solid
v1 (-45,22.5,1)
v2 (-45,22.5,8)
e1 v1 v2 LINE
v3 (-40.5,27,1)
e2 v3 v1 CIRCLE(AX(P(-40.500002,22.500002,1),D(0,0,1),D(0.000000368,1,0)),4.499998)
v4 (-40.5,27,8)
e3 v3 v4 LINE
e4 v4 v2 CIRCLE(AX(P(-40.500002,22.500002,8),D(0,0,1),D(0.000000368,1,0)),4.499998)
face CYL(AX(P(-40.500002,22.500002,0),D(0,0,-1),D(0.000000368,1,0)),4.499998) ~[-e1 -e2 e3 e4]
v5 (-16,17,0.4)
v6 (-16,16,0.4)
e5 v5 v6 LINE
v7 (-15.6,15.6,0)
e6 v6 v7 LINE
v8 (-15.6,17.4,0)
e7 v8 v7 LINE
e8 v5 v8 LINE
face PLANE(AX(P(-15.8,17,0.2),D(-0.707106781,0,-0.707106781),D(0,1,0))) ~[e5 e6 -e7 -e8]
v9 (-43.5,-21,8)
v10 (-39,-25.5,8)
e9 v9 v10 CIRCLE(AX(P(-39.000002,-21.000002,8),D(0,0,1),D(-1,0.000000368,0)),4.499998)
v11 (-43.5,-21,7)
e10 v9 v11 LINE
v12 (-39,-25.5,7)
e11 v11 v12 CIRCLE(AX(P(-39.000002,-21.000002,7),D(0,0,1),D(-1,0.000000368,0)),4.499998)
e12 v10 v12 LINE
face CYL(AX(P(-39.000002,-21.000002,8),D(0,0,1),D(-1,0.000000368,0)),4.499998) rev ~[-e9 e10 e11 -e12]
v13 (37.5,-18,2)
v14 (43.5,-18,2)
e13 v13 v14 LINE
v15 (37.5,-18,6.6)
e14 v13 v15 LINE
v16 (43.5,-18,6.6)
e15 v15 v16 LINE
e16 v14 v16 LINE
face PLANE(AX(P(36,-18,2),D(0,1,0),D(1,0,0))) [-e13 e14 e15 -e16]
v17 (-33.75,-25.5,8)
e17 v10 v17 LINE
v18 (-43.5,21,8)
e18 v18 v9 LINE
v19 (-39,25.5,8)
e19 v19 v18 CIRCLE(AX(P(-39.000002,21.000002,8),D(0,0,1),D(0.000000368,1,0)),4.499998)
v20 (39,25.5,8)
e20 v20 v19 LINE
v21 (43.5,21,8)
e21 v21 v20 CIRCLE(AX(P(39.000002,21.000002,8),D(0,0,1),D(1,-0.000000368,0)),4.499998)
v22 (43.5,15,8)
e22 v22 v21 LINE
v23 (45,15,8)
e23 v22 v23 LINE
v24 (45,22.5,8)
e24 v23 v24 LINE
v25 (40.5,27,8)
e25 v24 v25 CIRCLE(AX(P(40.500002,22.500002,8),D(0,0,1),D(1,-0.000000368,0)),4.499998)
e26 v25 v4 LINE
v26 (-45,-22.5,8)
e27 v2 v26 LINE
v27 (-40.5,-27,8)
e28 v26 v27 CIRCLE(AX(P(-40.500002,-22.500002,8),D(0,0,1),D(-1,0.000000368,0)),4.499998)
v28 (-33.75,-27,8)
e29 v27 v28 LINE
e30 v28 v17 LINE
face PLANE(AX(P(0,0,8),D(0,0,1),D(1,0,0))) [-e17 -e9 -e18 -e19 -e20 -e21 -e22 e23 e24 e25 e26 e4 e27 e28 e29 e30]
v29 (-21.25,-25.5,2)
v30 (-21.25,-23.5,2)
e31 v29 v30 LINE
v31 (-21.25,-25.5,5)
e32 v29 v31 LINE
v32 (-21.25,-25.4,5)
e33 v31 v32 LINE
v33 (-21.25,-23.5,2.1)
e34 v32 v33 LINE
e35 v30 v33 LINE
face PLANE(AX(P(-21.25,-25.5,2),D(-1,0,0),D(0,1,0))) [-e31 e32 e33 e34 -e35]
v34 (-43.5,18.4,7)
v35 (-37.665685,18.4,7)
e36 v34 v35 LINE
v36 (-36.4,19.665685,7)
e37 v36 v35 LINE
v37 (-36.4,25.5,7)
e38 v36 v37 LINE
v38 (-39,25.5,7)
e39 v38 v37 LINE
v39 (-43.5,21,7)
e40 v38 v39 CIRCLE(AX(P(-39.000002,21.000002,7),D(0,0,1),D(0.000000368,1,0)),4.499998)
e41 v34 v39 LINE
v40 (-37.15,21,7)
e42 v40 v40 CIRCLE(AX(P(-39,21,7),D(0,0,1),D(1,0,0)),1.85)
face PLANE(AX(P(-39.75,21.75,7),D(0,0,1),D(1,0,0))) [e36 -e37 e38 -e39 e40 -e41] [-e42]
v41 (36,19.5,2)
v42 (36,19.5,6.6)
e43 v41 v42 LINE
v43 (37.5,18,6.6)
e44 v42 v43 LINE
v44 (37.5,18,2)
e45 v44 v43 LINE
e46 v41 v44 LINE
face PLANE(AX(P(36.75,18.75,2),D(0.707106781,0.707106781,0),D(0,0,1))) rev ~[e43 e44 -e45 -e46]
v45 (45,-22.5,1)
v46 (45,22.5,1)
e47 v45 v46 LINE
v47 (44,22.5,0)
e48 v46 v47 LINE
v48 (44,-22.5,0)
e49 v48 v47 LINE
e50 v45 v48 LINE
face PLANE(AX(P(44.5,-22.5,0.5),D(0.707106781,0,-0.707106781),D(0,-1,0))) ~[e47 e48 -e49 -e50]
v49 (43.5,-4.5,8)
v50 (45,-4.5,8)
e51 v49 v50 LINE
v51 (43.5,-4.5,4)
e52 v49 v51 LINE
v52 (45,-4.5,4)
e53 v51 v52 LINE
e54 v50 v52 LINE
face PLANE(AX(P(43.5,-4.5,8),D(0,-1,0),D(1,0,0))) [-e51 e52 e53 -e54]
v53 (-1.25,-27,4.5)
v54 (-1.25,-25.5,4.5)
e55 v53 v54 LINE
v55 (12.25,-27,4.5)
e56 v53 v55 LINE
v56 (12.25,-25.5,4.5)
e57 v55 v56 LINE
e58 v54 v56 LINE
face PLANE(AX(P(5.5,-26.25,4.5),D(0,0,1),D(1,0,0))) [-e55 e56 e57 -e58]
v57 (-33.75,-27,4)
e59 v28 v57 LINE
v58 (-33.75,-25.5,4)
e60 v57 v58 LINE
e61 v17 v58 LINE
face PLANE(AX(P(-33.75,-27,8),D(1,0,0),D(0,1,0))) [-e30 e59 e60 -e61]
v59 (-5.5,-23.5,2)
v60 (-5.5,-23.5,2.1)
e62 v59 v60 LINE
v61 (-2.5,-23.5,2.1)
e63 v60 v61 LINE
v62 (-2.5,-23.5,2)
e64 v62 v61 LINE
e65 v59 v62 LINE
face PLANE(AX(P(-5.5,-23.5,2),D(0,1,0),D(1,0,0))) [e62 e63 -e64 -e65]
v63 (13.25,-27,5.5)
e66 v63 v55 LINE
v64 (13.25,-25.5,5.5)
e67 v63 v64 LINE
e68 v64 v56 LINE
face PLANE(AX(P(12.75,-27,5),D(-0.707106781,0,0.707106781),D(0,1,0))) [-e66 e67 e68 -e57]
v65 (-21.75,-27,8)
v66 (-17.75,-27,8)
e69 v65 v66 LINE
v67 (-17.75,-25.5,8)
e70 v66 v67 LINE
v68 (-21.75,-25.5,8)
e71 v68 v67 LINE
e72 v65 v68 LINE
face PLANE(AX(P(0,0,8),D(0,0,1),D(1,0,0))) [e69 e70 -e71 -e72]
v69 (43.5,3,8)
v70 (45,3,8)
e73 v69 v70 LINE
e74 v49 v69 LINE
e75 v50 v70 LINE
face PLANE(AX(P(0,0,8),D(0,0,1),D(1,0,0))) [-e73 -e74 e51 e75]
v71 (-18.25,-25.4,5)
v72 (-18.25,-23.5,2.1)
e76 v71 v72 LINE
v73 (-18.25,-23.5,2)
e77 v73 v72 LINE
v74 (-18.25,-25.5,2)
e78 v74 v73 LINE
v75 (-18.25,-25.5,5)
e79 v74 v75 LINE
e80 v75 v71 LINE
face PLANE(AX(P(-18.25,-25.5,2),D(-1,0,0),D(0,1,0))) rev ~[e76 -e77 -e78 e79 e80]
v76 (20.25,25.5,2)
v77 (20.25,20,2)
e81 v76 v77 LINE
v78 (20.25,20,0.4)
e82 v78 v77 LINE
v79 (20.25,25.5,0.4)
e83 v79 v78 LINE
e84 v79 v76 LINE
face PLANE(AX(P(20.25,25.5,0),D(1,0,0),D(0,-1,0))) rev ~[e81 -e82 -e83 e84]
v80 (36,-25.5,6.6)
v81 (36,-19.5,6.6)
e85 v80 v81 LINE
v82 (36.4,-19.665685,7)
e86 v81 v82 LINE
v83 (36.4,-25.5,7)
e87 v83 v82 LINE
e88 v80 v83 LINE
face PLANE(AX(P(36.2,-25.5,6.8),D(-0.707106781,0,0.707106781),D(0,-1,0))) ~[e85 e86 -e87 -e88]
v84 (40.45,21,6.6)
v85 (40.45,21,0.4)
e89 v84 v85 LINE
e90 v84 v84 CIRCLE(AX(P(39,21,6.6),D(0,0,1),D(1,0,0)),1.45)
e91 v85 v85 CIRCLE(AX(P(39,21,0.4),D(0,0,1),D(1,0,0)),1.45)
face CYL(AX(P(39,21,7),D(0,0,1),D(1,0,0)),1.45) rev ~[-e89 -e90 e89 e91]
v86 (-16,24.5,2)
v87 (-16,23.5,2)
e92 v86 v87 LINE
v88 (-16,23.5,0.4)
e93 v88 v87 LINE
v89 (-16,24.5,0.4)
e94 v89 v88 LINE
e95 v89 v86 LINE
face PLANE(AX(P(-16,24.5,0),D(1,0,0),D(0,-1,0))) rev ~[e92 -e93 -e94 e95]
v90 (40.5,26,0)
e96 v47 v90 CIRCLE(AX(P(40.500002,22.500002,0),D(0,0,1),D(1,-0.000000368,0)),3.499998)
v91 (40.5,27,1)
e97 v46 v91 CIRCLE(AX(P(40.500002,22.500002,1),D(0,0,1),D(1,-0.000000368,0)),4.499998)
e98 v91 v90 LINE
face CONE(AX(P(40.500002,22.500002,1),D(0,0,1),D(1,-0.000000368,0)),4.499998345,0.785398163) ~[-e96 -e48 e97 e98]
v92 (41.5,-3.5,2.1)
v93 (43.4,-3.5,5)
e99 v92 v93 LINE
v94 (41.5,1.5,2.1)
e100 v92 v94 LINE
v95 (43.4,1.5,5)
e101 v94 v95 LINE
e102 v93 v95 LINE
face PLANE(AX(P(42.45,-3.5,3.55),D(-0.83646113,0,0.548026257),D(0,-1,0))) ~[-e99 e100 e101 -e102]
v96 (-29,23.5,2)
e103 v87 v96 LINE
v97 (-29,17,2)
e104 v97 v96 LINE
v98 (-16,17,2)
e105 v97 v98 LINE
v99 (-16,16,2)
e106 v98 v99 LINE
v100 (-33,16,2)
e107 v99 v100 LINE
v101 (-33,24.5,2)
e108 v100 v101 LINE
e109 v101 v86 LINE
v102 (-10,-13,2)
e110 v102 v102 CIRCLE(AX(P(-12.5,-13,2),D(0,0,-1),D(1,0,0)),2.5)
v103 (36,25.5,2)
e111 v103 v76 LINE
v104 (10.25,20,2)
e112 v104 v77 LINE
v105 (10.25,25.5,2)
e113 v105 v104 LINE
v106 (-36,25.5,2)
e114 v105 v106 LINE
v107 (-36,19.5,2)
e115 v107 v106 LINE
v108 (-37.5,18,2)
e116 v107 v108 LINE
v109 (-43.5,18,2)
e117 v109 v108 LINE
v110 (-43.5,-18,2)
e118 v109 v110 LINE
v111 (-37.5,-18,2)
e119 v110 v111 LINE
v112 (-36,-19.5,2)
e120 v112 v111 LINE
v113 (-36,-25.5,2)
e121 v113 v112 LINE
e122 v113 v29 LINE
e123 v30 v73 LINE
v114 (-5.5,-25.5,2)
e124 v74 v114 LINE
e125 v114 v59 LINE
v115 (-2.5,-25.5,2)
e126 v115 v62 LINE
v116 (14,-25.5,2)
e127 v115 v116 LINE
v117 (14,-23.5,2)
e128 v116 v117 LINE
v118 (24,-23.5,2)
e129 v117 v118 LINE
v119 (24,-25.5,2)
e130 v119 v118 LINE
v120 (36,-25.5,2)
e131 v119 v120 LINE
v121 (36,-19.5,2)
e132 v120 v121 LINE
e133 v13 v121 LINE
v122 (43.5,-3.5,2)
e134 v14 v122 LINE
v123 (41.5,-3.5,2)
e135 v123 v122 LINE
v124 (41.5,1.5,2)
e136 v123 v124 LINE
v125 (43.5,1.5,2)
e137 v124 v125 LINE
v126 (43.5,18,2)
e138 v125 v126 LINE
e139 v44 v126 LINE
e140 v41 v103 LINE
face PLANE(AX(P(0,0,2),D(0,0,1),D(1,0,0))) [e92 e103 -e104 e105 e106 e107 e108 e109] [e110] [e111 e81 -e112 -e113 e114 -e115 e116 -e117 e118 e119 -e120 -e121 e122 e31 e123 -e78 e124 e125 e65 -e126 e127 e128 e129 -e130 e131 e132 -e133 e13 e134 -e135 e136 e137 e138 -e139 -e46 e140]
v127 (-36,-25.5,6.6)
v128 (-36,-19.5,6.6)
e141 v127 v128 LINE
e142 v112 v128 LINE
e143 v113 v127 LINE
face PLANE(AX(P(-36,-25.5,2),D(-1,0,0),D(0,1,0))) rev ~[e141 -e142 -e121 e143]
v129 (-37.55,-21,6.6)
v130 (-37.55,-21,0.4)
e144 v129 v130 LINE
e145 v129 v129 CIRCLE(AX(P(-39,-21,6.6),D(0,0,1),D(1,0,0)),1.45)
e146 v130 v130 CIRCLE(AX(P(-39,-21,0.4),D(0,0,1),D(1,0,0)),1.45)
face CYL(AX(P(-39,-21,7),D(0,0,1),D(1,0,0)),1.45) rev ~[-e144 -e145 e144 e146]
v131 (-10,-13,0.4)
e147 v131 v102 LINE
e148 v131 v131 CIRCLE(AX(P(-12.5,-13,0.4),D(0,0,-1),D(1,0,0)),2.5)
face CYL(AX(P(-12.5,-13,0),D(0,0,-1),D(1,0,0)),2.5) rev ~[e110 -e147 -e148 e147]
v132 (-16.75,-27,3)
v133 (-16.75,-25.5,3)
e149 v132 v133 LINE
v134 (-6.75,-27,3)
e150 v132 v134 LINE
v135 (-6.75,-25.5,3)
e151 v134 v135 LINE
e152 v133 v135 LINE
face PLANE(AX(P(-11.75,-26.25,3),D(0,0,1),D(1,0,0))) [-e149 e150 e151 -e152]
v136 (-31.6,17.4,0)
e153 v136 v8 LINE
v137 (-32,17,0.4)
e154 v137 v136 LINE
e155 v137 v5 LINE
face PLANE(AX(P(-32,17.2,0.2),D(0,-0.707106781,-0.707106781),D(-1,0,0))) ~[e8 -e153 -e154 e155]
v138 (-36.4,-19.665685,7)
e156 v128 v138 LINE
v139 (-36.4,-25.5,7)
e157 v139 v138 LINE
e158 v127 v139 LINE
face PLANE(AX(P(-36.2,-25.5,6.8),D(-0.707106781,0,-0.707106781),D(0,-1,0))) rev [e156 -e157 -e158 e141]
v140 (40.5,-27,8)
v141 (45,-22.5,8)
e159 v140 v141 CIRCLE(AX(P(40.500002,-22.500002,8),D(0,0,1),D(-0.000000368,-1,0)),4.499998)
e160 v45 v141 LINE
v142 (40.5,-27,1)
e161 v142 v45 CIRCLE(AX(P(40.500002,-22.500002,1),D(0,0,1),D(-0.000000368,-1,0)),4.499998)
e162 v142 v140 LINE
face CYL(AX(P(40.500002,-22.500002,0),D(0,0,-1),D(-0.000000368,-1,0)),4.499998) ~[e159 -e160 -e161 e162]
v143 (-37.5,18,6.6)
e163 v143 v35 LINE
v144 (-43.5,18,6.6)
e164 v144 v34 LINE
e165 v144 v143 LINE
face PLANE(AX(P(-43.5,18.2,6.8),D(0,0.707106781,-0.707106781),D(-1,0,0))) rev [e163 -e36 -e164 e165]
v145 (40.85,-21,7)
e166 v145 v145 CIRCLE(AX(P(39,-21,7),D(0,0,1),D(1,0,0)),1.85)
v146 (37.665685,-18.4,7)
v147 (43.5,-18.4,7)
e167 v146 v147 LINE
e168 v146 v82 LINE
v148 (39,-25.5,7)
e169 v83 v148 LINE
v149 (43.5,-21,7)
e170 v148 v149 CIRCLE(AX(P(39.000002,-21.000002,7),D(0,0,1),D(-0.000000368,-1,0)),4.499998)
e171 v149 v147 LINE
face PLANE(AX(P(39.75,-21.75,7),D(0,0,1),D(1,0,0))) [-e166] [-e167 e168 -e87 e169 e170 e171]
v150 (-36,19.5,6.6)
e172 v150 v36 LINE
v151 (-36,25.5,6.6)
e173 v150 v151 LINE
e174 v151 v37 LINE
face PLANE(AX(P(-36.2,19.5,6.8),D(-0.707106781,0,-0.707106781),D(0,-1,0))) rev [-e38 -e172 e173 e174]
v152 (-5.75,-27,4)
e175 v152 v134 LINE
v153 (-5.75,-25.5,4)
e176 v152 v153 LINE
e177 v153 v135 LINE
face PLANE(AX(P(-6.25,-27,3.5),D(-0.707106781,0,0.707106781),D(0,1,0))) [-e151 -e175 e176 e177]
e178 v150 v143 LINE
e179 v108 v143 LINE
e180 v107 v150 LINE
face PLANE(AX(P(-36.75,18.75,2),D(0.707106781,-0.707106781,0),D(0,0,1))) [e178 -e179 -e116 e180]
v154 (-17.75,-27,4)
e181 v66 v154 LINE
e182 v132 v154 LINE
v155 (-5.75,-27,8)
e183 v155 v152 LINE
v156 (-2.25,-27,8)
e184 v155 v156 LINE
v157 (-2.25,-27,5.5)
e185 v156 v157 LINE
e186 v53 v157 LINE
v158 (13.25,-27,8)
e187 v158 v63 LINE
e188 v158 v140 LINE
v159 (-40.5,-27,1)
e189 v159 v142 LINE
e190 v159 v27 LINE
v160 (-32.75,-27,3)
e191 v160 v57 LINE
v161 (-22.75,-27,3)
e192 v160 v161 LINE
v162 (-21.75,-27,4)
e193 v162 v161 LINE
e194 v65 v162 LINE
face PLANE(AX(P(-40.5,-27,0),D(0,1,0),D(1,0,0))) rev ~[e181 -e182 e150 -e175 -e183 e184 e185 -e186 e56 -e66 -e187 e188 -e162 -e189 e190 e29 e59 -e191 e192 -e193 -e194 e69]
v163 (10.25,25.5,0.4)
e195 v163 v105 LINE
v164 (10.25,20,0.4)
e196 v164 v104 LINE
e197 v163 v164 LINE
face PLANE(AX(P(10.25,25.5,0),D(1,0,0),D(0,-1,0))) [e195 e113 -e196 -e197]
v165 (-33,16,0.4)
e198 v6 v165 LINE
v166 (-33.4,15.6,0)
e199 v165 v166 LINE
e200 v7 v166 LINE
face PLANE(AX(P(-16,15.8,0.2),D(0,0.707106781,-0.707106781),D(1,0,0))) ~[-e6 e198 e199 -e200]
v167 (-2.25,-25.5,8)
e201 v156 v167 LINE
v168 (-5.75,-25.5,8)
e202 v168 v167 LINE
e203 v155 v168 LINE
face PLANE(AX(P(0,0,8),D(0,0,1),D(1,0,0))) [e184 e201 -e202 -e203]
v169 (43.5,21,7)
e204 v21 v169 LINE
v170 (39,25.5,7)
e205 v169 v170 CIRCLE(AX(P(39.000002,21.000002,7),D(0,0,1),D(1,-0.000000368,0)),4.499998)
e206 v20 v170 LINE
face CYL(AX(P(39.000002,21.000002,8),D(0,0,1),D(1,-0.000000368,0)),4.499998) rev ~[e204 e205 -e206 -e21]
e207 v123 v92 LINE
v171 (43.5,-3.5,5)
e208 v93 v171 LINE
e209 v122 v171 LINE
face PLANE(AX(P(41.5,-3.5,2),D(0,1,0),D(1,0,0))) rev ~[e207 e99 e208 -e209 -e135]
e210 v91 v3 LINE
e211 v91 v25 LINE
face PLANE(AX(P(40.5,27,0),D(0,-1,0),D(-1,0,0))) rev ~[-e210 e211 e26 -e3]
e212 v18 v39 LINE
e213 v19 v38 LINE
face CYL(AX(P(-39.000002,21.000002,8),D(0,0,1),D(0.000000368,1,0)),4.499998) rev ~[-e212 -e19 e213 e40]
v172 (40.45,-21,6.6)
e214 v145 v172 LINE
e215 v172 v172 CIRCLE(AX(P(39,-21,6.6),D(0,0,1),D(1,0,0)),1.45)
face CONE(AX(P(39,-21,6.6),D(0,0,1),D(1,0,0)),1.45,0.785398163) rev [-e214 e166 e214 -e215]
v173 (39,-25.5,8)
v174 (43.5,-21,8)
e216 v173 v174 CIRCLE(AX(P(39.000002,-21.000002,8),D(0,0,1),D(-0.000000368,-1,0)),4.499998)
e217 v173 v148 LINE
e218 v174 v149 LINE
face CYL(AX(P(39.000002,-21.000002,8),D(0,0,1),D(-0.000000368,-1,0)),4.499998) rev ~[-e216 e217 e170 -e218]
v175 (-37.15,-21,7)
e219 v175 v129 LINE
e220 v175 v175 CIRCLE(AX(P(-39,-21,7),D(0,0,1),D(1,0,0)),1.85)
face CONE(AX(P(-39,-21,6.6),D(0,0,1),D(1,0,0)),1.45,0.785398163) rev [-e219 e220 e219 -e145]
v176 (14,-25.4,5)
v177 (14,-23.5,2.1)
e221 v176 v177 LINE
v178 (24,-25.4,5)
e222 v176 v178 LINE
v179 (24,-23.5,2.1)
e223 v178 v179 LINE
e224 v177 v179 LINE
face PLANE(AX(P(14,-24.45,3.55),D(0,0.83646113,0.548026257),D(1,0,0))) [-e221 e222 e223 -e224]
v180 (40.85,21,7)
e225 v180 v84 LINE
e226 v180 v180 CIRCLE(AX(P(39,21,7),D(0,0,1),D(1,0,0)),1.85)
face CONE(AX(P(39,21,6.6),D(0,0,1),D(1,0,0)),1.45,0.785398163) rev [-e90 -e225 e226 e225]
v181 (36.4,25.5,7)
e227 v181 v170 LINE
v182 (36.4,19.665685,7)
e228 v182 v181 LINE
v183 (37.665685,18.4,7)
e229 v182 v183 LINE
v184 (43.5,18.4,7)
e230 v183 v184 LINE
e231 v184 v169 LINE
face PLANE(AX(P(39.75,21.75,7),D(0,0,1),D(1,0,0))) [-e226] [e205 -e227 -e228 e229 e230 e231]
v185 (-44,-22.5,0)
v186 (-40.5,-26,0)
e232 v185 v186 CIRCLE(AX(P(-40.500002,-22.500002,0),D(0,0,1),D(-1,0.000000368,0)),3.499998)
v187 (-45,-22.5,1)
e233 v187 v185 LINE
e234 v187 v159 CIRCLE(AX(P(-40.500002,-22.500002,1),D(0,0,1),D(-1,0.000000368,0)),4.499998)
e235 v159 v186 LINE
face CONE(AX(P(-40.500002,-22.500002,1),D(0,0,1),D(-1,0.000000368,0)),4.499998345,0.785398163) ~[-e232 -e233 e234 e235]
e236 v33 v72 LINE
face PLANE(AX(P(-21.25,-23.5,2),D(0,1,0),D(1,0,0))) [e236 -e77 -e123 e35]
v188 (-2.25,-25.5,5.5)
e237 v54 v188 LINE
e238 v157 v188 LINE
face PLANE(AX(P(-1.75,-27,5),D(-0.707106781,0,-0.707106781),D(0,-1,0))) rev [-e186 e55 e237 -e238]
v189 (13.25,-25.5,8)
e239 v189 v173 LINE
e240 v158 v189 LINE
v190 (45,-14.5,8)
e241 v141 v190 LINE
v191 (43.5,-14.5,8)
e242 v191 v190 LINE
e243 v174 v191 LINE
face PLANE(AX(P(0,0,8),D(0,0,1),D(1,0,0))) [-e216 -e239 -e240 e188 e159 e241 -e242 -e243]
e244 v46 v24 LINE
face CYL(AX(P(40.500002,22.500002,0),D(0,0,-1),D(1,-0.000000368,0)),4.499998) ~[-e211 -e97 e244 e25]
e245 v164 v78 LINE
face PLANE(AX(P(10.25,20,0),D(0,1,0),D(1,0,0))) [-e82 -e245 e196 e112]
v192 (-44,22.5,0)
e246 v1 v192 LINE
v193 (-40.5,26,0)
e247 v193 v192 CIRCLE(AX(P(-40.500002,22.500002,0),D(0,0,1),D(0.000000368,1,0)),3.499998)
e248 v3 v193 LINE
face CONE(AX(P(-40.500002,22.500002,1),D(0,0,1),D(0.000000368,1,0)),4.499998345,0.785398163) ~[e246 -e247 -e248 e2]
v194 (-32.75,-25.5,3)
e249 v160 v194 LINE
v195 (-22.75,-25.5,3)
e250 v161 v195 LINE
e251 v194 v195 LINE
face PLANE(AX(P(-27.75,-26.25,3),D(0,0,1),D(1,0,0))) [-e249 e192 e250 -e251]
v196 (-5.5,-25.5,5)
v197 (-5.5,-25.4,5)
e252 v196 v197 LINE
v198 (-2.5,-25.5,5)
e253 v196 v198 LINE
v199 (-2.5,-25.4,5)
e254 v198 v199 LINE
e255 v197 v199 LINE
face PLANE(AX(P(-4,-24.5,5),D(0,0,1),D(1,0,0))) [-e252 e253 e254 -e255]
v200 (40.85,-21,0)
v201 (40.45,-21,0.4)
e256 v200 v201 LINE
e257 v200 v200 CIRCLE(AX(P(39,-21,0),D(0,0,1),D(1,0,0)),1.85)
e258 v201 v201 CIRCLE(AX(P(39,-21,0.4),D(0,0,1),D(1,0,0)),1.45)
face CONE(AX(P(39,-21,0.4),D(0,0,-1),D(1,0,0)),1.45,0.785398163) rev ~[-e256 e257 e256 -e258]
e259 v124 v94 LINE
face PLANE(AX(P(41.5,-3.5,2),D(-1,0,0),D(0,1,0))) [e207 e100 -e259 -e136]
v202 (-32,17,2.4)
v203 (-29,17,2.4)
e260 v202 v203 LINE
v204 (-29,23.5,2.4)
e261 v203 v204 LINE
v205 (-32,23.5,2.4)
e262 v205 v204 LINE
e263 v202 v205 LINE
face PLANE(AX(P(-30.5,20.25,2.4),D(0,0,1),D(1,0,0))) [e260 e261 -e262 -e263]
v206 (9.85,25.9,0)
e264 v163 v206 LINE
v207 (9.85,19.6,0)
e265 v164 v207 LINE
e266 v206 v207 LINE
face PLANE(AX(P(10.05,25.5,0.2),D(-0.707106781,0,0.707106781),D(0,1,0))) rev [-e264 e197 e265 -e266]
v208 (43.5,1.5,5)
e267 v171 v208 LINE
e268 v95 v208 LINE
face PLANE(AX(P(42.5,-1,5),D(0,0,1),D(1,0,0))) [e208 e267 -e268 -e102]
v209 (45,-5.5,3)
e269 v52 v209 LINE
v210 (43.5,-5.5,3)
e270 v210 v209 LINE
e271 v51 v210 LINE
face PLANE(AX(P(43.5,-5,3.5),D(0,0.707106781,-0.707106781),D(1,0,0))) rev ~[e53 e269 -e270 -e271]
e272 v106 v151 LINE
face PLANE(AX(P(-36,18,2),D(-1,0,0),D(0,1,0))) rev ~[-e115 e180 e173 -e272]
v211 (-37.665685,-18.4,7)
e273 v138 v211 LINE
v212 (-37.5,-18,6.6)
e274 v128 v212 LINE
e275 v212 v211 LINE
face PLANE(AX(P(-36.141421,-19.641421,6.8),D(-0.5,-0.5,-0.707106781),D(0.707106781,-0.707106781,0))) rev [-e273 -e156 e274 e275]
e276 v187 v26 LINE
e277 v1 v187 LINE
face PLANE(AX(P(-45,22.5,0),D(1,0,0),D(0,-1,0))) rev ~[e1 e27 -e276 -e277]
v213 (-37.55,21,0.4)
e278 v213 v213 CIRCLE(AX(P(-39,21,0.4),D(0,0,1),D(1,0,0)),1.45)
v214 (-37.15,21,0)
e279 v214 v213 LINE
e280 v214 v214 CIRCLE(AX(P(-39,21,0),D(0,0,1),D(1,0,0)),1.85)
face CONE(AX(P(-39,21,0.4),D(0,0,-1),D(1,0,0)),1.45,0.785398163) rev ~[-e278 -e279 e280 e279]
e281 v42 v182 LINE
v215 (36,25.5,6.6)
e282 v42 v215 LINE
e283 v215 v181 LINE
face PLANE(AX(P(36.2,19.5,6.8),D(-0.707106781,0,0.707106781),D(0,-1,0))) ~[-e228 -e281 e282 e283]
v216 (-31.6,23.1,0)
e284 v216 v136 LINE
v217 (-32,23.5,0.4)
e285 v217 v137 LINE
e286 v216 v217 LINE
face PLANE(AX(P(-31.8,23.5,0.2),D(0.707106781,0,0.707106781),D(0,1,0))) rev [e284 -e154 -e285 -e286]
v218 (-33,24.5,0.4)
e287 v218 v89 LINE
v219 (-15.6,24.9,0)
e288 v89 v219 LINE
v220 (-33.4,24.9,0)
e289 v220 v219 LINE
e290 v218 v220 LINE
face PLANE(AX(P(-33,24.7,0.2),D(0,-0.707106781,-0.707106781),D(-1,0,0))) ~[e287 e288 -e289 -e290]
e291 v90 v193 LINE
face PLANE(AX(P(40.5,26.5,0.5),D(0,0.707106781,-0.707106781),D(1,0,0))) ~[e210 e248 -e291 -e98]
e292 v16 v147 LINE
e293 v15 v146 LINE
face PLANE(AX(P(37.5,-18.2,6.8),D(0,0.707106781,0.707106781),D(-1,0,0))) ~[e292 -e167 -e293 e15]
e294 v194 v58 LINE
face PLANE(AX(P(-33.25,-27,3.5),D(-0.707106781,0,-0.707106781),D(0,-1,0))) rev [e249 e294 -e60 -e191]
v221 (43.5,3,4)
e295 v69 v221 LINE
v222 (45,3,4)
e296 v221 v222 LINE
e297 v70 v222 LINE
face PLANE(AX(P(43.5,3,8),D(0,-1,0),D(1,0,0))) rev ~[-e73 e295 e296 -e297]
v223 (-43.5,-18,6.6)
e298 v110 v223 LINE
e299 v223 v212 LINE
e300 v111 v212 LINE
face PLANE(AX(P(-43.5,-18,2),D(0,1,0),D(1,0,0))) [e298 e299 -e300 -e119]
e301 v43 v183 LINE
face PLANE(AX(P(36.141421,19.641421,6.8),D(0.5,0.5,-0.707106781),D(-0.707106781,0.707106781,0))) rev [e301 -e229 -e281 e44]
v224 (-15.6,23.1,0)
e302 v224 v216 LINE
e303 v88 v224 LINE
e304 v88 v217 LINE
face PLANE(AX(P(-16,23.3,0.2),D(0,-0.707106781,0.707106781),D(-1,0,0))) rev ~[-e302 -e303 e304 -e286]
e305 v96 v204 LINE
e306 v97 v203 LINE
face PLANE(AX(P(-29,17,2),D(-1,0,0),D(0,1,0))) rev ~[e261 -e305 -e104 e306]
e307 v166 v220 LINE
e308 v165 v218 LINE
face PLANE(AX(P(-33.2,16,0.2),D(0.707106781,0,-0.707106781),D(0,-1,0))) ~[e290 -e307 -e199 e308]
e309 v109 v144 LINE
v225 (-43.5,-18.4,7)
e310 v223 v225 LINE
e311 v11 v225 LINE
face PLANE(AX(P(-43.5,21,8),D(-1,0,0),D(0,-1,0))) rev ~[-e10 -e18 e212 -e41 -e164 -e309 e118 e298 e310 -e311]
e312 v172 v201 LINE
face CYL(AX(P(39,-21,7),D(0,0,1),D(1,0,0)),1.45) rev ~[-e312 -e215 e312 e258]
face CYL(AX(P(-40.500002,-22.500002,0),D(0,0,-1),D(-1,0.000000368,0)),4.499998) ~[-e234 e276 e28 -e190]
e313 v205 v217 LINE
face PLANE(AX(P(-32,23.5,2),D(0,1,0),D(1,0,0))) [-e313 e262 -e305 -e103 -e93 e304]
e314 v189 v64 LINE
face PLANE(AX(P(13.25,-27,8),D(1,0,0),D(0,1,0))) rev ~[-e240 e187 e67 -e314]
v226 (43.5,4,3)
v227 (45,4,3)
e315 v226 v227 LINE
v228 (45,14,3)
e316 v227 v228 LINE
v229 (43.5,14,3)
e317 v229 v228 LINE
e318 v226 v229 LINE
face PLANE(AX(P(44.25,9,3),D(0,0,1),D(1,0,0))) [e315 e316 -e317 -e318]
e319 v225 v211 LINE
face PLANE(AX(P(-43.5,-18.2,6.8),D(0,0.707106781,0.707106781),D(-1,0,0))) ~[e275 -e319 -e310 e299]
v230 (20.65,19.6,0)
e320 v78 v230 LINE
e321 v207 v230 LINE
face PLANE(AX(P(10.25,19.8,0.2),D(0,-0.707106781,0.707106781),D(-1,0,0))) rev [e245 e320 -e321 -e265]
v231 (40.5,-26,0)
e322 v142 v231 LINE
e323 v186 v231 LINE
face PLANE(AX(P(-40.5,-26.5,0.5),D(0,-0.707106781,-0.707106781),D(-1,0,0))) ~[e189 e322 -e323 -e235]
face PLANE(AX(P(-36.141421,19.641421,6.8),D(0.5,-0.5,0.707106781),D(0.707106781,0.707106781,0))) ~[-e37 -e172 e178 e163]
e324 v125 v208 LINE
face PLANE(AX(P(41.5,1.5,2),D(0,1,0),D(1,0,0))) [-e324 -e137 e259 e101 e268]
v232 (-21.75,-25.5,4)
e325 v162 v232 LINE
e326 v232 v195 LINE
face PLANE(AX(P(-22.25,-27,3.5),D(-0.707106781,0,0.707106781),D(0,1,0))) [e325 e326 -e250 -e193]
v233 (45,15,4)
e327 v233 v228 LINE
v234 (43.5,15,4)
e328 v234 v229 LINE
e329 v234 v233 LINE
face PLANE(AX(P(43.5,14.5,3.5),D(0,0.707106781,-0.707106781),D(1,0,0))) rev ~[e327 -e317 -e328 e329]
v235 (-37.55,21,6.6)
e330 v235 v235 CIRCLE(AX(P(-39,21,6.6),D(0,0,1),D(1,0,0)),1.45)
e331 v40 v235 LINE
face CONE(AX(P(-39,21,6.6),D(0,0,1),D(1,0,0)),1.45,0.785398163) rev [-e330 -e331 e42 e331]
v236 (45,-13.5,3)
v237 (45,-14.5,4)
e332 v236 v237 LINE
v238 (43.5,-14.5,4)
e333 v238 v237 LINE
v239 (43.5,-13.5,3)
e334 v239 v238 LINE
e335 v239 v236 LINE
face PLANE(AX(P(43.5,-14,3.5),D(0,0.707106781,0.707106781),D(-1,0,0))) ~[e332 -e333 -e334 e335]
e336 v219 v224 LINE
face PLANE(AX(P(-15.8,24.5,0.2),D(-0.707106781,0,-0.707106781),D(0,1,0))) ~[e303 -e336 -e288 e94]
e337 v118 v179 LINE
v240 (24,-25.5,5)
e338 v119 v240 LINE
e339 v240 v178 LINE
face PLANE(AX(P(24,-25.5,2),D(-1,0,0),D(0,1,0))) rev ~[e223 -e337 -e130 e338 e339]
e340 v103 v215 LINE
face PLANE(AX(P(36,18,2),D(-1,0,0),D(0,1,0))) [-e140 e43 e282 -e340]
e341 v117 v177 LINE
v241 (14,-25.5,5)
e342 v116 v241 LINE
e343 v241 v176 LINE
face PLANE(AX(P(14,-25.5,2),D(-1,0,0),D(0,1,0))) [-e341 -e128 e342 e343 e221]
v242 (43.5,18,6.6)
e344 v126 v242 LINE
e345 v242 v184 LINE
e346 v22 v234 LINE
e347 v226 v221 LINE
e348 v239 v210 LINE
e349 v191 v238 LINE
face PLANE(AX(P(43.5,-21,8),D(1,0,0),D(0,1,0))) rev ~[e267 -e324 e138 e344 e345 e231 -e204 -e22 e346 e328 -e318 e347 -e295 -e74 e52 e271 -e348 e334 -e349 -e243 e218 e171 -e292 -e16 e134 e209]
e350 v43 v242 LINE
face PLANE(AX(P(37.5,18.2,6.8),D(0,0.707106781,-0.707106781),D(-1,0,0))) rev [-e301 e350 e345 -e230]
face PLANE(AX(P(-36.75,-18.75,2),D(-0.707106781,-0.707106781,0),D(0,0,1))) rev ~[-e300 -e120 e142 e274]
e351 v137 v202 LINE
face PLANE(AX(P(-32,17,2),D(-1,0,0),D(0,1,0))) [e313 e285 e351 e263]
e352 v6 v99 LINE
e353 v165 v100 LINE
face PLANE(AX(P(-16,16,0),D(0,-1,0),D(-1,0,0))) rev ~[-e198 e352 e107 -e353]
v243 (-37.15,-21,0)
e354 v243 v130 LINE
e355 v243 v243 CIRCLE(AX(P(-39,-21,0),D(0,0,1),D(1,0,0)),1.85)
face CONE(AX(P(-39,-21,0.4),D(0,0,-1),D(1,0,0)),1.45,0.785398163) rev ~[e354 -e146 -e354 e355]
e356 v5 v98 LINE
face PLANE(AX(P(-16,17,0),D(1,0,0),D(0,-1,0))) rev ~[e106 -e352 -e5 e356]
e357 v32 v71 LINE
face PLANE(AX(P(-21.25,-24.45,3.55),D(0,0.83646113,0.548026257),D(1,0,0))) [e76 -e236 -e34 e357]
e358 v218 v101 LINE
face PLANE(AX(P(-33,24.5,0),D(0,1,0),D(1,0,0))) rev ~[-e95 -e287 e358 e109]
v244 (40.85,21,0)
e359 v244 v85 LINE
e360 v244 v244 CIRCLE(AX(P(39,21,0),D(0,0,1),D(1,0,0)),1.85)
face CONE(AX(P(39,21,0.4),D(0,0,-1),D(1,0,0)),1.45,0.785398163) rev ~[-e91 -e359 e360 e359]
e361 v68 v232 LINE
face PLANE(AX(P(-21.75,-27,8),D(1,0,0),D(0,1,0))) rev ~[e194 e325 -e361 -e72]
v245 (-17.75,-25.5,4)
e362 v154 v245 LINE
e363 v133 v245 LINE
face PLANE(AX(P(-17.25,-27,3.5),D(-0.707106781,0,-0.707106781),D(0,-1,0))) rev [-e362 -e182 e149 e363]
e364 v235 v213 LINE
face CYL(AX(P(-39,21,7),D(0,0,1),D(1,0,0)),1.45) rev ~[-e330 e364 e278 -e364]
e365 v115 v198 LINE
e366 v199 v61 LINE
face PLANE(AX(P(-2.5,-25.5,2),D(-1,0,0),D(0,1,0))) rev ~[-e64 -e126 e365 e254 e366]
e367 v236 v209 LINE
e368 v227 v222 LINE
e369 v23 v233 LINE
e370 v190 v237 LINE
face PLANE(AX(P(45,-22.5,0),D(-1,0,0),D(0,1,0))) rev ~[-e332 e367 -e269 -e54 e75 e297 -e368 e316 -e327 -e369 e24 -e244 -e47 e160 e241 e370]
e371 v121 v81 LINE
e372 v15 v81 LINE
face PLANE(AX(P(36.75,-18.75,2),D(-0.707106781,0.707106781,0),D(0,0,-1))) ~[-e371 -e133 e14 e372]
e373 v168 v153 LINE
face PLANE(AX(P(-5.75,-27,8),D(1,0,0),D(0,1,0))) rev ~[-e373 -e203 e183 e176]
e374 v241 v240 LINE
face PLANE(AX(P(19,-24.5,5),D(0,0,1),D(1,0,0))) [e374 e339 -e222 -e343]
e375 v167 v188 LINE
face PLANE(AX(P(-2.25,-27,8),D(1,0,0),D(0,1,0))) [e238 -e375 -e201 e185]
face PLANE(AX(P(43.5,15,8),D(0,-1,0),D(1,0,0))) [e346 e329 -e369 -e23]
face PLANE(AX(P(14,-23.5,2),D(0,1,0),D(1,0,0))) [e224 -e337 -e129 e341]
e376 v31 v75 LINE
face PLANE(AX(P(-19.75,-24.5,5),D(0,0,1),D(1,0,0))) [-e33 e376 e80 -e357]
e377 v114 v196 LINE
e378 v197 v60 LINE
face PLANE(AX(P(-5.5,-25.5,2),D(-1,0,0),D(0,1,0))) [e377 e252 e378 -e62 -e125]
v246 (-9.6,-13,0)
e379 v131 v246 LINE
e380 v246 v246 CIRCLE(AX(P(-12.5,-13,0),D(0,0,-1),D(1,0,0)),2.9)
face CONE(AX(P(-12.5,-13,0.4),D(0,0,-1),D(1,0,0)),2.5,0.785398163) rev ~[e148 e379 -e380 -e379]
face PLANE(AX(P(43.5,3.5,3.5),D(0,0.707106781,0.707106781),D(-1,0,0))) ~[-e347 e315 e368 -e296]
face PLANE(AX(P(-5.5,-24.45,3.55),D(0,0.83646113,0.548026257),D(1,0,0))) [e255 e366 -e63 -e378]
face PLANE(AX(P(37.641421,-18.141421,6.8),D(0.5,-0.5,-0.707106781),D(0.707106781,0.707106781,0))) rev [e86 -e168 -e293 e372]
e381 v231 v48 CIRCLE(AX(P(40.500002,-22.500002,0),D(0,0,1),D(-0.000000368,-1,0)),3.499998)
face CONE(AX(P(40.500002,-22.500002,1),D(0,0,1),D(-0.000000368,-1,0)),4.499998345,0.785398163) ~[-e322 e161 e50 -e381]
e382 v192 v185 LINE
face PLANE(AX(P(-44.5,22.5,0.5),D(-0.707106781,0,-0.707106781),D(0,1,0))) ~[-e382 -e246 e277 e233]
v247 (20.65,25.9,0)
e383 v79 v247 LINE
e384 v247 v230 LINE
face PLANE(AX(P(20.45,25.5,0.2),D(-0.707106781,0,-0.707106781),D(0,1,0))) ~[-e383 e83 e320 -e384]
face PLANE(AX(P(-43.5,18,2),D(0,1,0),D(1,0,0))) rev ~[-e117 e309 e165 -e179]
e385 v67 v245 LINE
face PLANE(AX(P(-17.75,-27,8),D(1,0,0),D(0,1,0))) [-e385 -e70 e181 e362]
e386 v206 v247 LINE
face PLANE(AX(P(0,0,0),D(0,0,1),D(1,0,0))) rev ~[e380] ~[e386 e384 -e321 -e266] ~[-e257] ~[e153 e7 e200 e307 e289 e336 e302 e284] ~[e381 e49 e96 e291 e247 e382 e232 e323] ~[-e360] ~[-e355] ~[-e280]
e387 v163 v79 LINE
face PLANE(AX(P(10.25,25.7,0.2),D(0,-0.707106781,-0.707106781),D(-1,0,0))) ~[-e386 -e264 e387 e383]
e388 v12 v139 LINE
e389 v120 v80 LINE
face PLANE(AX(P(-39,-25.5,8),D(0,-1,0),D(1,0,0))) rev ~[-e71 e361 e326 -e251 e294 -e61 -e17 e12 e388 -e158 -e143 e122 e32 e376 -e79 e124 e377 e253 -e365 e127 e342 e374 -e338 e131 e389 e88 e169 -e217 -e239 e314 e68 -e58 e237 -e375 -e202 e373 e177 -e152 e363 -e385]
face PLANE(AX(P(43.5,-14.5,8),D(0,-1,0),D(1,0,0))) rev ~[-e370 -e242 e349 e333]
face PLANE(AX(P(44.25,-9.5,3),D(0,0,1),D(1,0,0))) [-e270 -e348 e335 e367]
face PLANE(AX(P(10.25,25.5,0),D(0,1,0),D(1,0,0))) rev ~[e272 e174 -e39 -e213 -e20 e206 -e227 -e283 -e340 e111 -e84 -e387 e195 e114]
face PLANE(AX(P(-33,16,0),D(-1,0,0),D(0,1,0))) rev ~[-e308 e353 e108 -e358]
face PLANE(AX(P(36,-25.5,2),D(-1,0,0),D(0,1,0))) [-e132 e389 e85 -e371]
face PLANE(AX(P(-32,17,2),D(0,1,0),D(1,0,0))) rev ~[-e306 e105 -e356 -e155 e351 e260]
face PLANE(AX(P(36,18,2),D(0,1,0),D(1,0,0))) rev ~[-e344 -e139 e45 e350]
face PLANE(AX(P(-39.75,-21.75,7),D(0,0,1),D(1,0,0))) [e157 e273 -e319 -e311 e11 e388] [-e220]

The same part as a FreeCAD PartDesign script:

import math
import FreeCAD as App
import Part
import Sketcher
Q = App.Units.Quantity


def edges_at(feature, points):
    """Names of the edges that pass closest to the given points."""
    edges = feature.Shape.Edges
    near = lambda p: min(range(len(edges)), key=lambda i: edges[i].distToShape(Part.Vertex(*p))[0])
    return sorted({f"Edge{near(p) + 1}" for p in points})


def add_polygon(sketch, points):
    """Adds a closed chain of lines whose ends are joined by coincident constraints."""
    first, n = sketch.GeometryCount, len(points)
    for a, b in zip(points, points[1:] + points[:1]):
        sketch.addGeometry(Part.LineSegment(App.Vector(*a, 0), App.Vector(*b, 0)), False)
    for i in range(n):
        sketch.addConstraint(Sketcher.Constraint("Coincident", first + i, 2, first + (i + 1) % n, 1))

doc = App.newDocument("Part")
body = doc.addObject("PartDesign::Body", "Body")

sketch1 = doc.addObject("Sketcher::SketchObject", "Sketch")
body.addObject(sketch1)
sketch1.AttachmentSupport = (doc.XY_Plane, [""])
sketch1.MapMode = "FlatFace"
sketch1.addGeometry([
    Part.LineSegment(App.Vector(-40.5, -27, 0), App.Vector(40.5, -27, 0)),
    Part.ArcOfCircle(Part.Circle(App.Vector(40.5, -22.5, 0), App.Vector(0, 0, 1), 4.5), math.radians(-90), math.radians(0)),
    Part.LineSegment(App.Vector(45, -22.5, 0), App.Vector(45, 22.5, 0)),
    Part.ArcOfCircle(Part.Circle(App.Vector(40.5, 22.5, 0), App.Vector(0, 0, 1), 4.5), math.radians(0), math.radians(90)),
    Part.LineSegment(App.Vector(40.5, 27, 0), App.Vector(-40.5, 27, 0)),
    Part.ArcOfCircle(Part.Circle(App.Vector(-40.5, 22.5, 0), App.Vector(0, 0, 1), 4.5), math.radians(90), math.radians(180)),
    Part.LineSegment(App.Vector(-45, 22.5, 0), App.Vector(-45, -22.5, 0)),
    Part.ArcOfCircle(Part.Circle(App.Vector(-40.5, -22.5, 0), App.Vector(0, 0, 1), 4.5), math.radians(180), math.radians(270)),
], False)
sketch1.addConstraint([
    Sketcher.Constraint("Tangent", 0, 2, 1, 1),
    Sketcher.Constraint("Tangent", 1, 2, 2, 1),
    Sketcher.Constraint("Tangent", 2, 2, 3, 1),
    Sketcher.Constraint("Tangent", 3, 2, 4, 1),
    Sketcher.Constraint("Tangent", 4, 2, 5, 1),
    Sketcher.Constraint("Tangent", 5, 2, 6, 1),
    Sketcher.Constraint("Tangent", 6, 2, 7, 1),
    Sketcher.Constraint("Tangent", 7, 2, 0, 1),
    Sketcher.Constraint("Horizontal", 0),
    Sketcher.Constraint("Vertical", 2),
    Sketcher.Constraint("Horizontal", 4),
    Sketcher.Constraint("Vertical", 6),
    Sketcher.Constraint("Equal", 1, 3),
    Sketcher.Constraint("Equal", 3, 5),
    Sketcher.Constraint("Equal", 5, 7),
    Sketcher.Constraint("Symmetric", 1, 3, 5, 3, -1, 1),
    Sketcher.Constraint("Radius", 1, Q("4.499998 mm")),
    Sketcher.Constraint("DistanceX", 0, 1, 0, 2, Q("81 mm")),
    Sketcher.Constraint("DistanceY", 2, 1, 2, 2, Q("45 mm")),
])
pad1 = doc.addObject("PartDesign::Pad", "Pad")
body.addObject(pad1)
pad1.Profile = sketch1
pad1.Length = 8

sketch2 = doc.addObject("Sketcher::SketchObject", "Sketch001")
body.addObject(sketch2)
sketch2.AttachmentSupport = (doc.XY_Plane, [""])
sketch2.MapMode = "FlatFace"
sketch2.AttachmentOffset = App.Placement(App.Vector(0, 0, 8), App.Rotation())
sketch2.addGeometry([
    Part.LineSegment(App.Vector(-39, -25.5, 0), App.Vector(39, -25.5, 0)),
    Part.ArcOfCircle(Part.Circle(App.Vector(39, -21, 0), App.Vector(0, 0, 1), 4.5), math.radians(-90), math.radians(0)),
    Part.LineSegment(App.Vector(43.5, -21, 0), App.Vector(43.5, 21, 0)),
    Part.ArcOfCircle(Part.Circle(App.Vector(39, 21, 0), App.Vector(0, 0, 1), 4.5), math.radians(0), math.radians(90)),
    Part.LineSegment(App.Vector(39, 25.5, 0), App.Vector(-39, 25.5, 0)),
    Part.ArcOfCircle(Part.Circle(App.Vector(-39, 21, 0), App.Vector(0, 0, 1), 4.5), math.radians(90), math.radians(180)),
    Part.LineSegment(App.Vector(-43.5, 21, 0), App.Vector(-43.5, -21, 0)),
    Part.ArcOfCircle(Part.Circle(App.Vector(-39, -21, 0), App.Vector(0, 0, 1), 4.5), math.radians(180), math.radians(270)),
], False)
sketch2.addConstraint([
    Sketcher.Constraint("Tangent", 0, 2, 1, 1),
    Sketcher.Constraint("Tangent", 1, 2, 2, 1),
    Sketcher.Constraint("Tangent", 2, 2, 3, 1),
    Sketcher.Constraint("Tangent", 3, 2, 4, 1),
    Sketcher.Constraint("Tangent", 4, 2, 5, 1),
    Sketcher.Constraint("Tangent", 5, 2, 6, 1),
    Sketcher.Constraint("Tangent", 6, 2, 7, 1),
    Sketcher.Constraint("Tangent", 7, 2, 0, 1),
    Sketcher.Constraint("Horizontal", 0),
    Sketcher.Constraint("Vertical", 2),
    Sketcher.Constraint("Horizontal", 4),
    Sketcher.Constraint("Vertical", 6),
    Sketcher.Constraint("Equal", 1, 3),
    Sketcher.Constraint("Equal", 3, 5),
    Sketcher.Constraint("Equal", 5, 7),
    Sketcher.Constraint("Symmetric", 1, 3, 5, 3, -1, 1),
    Sketcher.Constraint("Radius", 1, Q("4.499998 mm")),
    Sketcher.Constraint("DistanceX", 0, 1, 0, 2, Q("78 mm")),
    Sketcher.Constraint("DistanceY", 2, 1, 2, 2, Q("42 mm")),
])
pocket1 = doc.addObject("PartDesign::Pocket", "Pocket")
body.addObject(pocket1)
pocket1.Profile = sketch2
pocket1.Length = 6

sketch3 = doc.addObject("Sketcher::SketchObject", "Sketch002")
body.addObject(sketch3)
sketch3.AttachmentSupport = (doc.XY_Plane, [""])
sketch3.MapMode = "FlatFace"
sketch3.addGeometry(Part.Circle(App.Vector(-12.5, -13, 0), App.Vector(0, 0, 1), 2.5), False)
add_polygon(sketch3, [(-16, 23.5), (-32, 23.5), (-32, 17), (-16, 17), (-16, 16), (-33, 16), (-33, 24.5), (-16, 24.5)])
add_polygon(sketch3, [(10.2, 20), (10.2, 25.5), (20.2, 25.5), (20.2, 20)])
sketch3.addConstraint([
    Sketcher.Constraint("Horizontal", 1),
    Sketcher.Constraint("Vertical", 2),
    Sketcher.Constraint("Horizontal", 3),
    Sketcher.Constraint("Vertical", 4),
    Sketcher.Constraint("Horizontal", 5),
    Sketcher.Constraint("Vertical", 6),
    Sketcher.Constraint("Horizontal", 7),
    Sketcher.Constraint("Vertical", 8),
    Sketcher.Constraint("Vertical", 9),
    Sketcher.Constraint("Horizontal", 10),
    Sketcher.Constraint("Vertical", 11),
    Sketcher.Constraint("Horizontal", 12),
    Sketcher.Constraint("Vertical", 4, 2, 7, 2),
    Sketcher.Constraint("Equal", 4, 8),
    Sketcher.Constraint("Diameter", 0, Q("5 mm")),
    Sketcher.Constraint("DistanceX", 1, 2, 1, 1, Q("16 mm")),
    Sketcher.Constraint("DistanceX", 5, 2, 5, 1, Q("17 mm")),
    Sketcher.Constraint("DistanceX", 10, 1, 10, 2, Q("10 mm")),
    Sketcher.Constraint("DistanceY", 4, 2, 4, 1, Q("1 mm")),
    Sketcher.Constraint("DistanceY", 2, 2, 2, 1, Q("6.5 mm")),
    Sketcher.Constraint("DistanceY", 9, 1, 9, 2, Q("5.5 mm")),
    Sketcher.Constraint("DistanceY", 0, 3, -1, 1, Q("13 mm")),
    Sketcher.Constraint("DistanceX", 1, 2, -1, 1, Q("32 mm")),
    Sketcher.Constraint("DistanceY", -1, 1, 2, 2, Q("17 mm")),
    Sketcher.Constraint("DistanceY", -1, 1, 11, 2, Q("20 mm")),
    Sketcher.Constraint("DistanceX", 0, 3, -1, 1, Q("12.5 mm")),
    Sketcher.Constraint("DistanceX", -1, 1, 9, 2, Q("10.25 mm")),
])
pocket2 = doc.addObject("PartDesign::Pocket", "Pocket001")
body.addObject(pocket2)
pocket2.Profile = sketch3
pocket2.Length = 2
pocket2.Reversed = True

sketch4 = doc.addObject("Sketcher::SketchObject", "Sketch003")
body.addObject(sketch4)
sketch4.AttachmentSupport = (doc.XY_Plane, [""])
sketch4.MapMode = "FlatFace"
sketch4.AttachmentOffset = App.Placement(App.Vector(0, 0, 2), App.Rotation())
add_polygon(sketch4, [(-32, 23.5), (-32, 17), (-29, 17), (-29, 23.5)])
sketch4.addConstraint([
    Sketcher.Constraint("Vertical", 0),
    Sketcher.Constraint("Horizontal", 1),
    Sketcher.Constraint("Vertical", 2),
    Sketcher.Constraint("Horizontal", 3),
    Sketcher.Constraint("DistanceX", 1, 1, 1, 2, Q("3 mm")),
    Sketcher.Constraint("DistanceY", 0, 2, 0, 1, Q("6.5 mm")),
    Sketcher.Constraint("DistanceX", 0, 2, -1, 1, Q("32 mm")),
    Sketcher.Constraint("DistanceY", -1, 1, 0, 2, Q("17 mm")),
])
pad2 = doc.addObject("PartDesign::Pad", "Pad001")
body.addObject(pad2)
pad2.Profile = sketch4
pad2.Length = 0.4

sketch5 = doc.addObject("Sketcher::SketchObject", "Sketch004")
body.addObject(sketch5)
sketch5.AttachmentSupport = (doc.XY_Plane, [""])
sketch5.MapMode = "FlatFace"
sketch5.AttachmentOffset = App.Placement(App.Vector(0, 0, 8), App.Rotation())
add_polygon(sketch5, [(-17.8, -25.5), (-17.8, -27), (-5.8, -27), (-5.8, -25.5)])
add_polygon(sketch5, [(43.5, -4.5), (43.5, -14.5), (45, -14.5), (45, -4.5)])
add_polygon(sketch5, [(-33.8, -25.5), (-33.8, -27), (-21.8, -27), (-21.8, -25.5)])
add_polygon(sketch5, [(43.5, 15), (43.5, 3), (45, 3), (45, 15)])
sketch5.addConstraint([
    Sketcher.Constraint("Vertical", 0),
    Sketcher.Constraint("Horizontal", 1),
    Sketcher.Constraint("Vertical", 2),
    Sketcher.Constraint("Horizontal", 3),
    Sketcher.Constraint("Vertical", 4),
    Sketcher.Constraint("Horizontal", 5),
    Sketcher.Constraint("Vertical", 6),
    Sketcher.Constraint("Horizontal", 7),
    Sketcher.Constraint("Vertical", 8),
    Sketcher.Constraint("Horizontal", 9),
    Sketcher.Constraint("Vertical", 10),
    Sketcher.Constraint("Horizontal", 11),
    Sketcher.Constraint("Vertical", 12),
    Sketcher.Constraint("Horizontal", 13),
    Sketcher.Constraint("Vertical", 14),
    Sketcher.Constraint("Horizontal", 15),
    Sketcher.Constraint("Horizontal", 1, 2, 8, 2),
    Sketcher.Constraint("Horizontal", 3, 2, 10, 2),
    Sketcher.Constraint("Vertical", 7, 2, 12, 2),
    Sketcher.Constraint("Vertical", 6, 2, 13, 2),
    Sketcher.Constraint("Equal", 3, 9),
    Sketcher.Constraint("Equal", 15, 0),
    Sketcher.Constraint("Equal", 11, 12),
    Sketcher.Constraint("DistanceX", 1, 1, 1, 2, Q("12 mm")),
    Sketcher.Constraint("DistanceY", 4, 2, 4, 1, Q("10 mm")),
    Sketcher.Constraint("DistanceX", 5, 1, 5, 2, Q("1.5 mm")),
    Sketcher.Constraint("DistanceY", 0, 2, -1, 1, Q("27 mm")),
    Sketcher.Constraint("DistanceX", -1, 1, 5, 2, Q("45 mm")),
    Sketcher.Constraint("DistanceY", -1, 1, 12, 2, Q("3 mm")),
    Sketcher.Constraint("DistanceY", 2, 2, 4, 2, Q("11 mm")),
    Sketcher.Constraint("DistanceX", 8, 2, 0, 2, Q("16 mm")),
    Sketcher.Constraint("DistanceX", 0, 2, -1, 1, Q("17.75 mm")),
])
pocket3 = doc.addObject("PartDesign::Pocket", "Pocket002")
body.addObject(pocket3)
pocket3.Profile = sketch5
pocket3.Length = 5
doc.recompute()

chamfer = doc.addObject("PartDesign::Chamfer", "Chamfer")
body.addObject(chamfer)
chamfer.Base = (pocket3, edges_at(pocket3, [
    (44.25, -4.5, 3),
    (-17.75, -26.25, 3),
    (-5.75, -26.25, 3),
    (44.25, -14.5, 3),
    (-33.75, -26.25, 3),
    (44.25, 15, 3),
    (44.25, 3, 3),
    (-21.75, -26.25, 3),
]))
chamfer.Size = 1

sketch6 = doc.addObject("Sketcher::SketchObject", "Sketch005")
body.addObject(sketch6)
sketch6.AttachmentSupport = (doc.XY_Plane, [""])
sketch6.MapMode = "FlatFace"
sketch6.AttachmentOffset = App.Placement(App.Vector(0, 0, 8), App.Rotation())
add_polygon(sketch6, [(-2.2, -25.5), (-2.2, -27), (13.2, -27), (13.2, -25.5)])
sketch6.addConstraint([
    Sketcher.Constraint("Vertical", 0),
    Sketcher.Constraint("Horizontal", 1),
    Sketcher.Constraint("Vertical", 2),
    Sketcher.Constraint("Horizontal", 3),
    Sketcher.Constraint("DistanceX", 1, 1, 1, 2, Q("15.5 mm")),
    Sketcher.Constraint("DistanceY", 0, 2, 0, 1, Q("1.5 mm")),
    Sketcher.Constraint("DistanceY", 0, 2, -1, 1, Q("27 mm")),
    Sketcher.Constraint("DistanceX", 0, 2, -1, 1, Q("2.25 mm")),
])
pocket4 = doc.addObject("PartDesign::Pocket", "Pocket003")
body.addObject(pocket4)
pocket4.Profile = sketch6
pocket4.Length = 3.5
doc.recompute()

chamfer2 = doc.addObject("PartDesign::Chamfer", "Chamfer001")
body.addObject(chamfer2)
chamfer2.Base = (pocket4, edges_at(pocket4, [(-2.25, -26.25, 4.5), (13.25, -26.25, 4.5)]))
chamfer2.Size = 1

sketch7 = doc.addObject("Sketcher::SketchObject", "Sketch006")
body.addObject(sketch7)
sketch7.AttachmentSupport = (doc.XY_Plane, [""])
sketch7.MapMode = "FlatFace"
sketch7.AttachmentOffset = App.Placement(App.Vector(0, 0, 2), App.Rotation())
add_polygon(sketch7, [(14, -23.5), (14, -25.5), (24, -25.5), (24, -23.5)])
add_polygon(sketch7, [(-5.5, -23.5), (-5.5, -25.5), (-2.5, -25.5), (-2.5, -23.5)])
add_polygon(sketch7, [(-21.2, -23.5), (-21.2, -25.5), (-18.2, -25.5), (-18.2, -23.5)])
add_polygon(sketch7, [(41.5, 1.5), (41.5, -3.5), (43.5, -3.5), (43.5, 1.5)])
sketch7.addConstraint([
    Sketcher.Constraint("Vertical", 0),
    Sketcher.Constraint("Horizontal", 1),
    Sketcher.Constraint("Vertical", 2),
    Sketcher.Constraint("Horizontal", 3),
    Sketcher.Constraint("Vertical", 4),
    Sketcher.Constraint("Horizontal", 5),
    Sketcher.Constraint("Vertical", 6),
    Sketcher.Constraint("Horizontal", 7),
    Sketcher.Constraint("Vertical", 8),
    Sketcher.Constraint("Horizontal", 9),
    Sketcher.Constraint("Vertical", 10),
    Sketcher.Constraint("Horizontal", 11),
    Sketcher.Constraint("Vertical", 12),
    Sketcher.Constraint("Horizontal", 13),
    Sketcher.Constraint("Vertical", 14),
    Sketcher.Constraint("Horizontal", 15),
    Sketcher.Constraint("Horizontal", 1, 2, 4, 2),
    Sketcher.Constraint("Horizontal", 3, 2, 6, 2),
    Sketcher.Constraint("Horizontal", 5, 2, 8, 2),
    Sketcher.Constraint("Horizontal", 7, 2, 10, 2),
    Sketcher.Constraint("Equal", 7, 9),
    Sketcher.Constraint("Equal", 15, 0),
    Sketcher.Constraint("DistanceX", 1, 1, 1, 2, Q("10 mm")),
    Sketcher.Constraint("DistanceX", 5, 1, 5, 2, Q("3 mm")),
    Sketcher.Constraint("DistanceX", 13, 1, 13, 2, Q("2 mm")),
    Sketcher.Constraint("DistanceY", 12, 2, 12, 1, Q("5 mm")),
    Sketcher.Constraint("DistanceX", -1, 1, 0, 2, Q("14 mm")),
    Sketcher.Constraint("DistanceY", 2, 2, 12, 2, Q("20 mm")),
    Sketcher.Constraint("DistanceX", 6, 2, 12, 2, Q("44 mm")),
    Sketcher.Constraint("DistanceY", 0, 2, -1, 1, Q("25.5 mm")),
    Sketcher.Constraint("DistanceX", 4, 2, -1, 1, Q("5.5 mm")),
    Sketcher.Constraint("DistanceX", 8, 2, -1, 1, Q("21.25 mm")),
])
pad3 = doc.addObject("PartDesign::Pad", "Pad002")
body.addObject(pad3)
pad3.Profile = sketch7
pad3.Length = 3

sketch8 = doc.addObject("Sketcher::SketchObject", "Sketch007")
body.addObject(sketch8)
sketch8.AttachmentSupport = (doc.XY_Plane, [""])
sketch8.MapMode = "FlatFace"
sketch8.AttachmentOffset = App.Placement(App.Vector(0, 0, 2), App.Rotation())
add_polygon(sketch8, [(36, 26), (36, 18), (44, 18), (44, 26)])
add_polygon(sketch8, [(-44, -18), (-44, -26), (-36, -26), (-36, -18)])
add_polygon(sketch8, [(-44, 26), (-44, 18), (-36, 18), (-36, 26)])
add_polygon(sketch8, [(36, -18), (36, -26), (44, -26), (44, -18)])
sketch8.addConstraint([
    Sketcher.Constraint("Vertical", 0),
    Sketcher.Constraint("Horizontal", 1),
    Sketcher.Constraint("Vertical", 2),
    Sketcher.Constraint("Horizontal", 3),
    Sketcher.Constraint("Vertical", 4),
    Sketcher.Constraint("Horizontal", 5),
    Sketcher.Constraint("Vertical", 6),
    Sketcher.Constraint("Horizontal", 7),
    Sketcher.Constraint("Vertical", 8),
    Sketcher.Constraint("Horizontal", 9),
    Sketcher.Constraint("Vertical", 10),
    Sketcher.Constraint("Horizontal", 11),
    Sketcher.Constraint("Vertical", 12),
    Sketcher.Constraint("Horizontal", 13),
    Sketcher.Constraint("Vertical", 14),
    Sketcher.Constraint("Horizontal", 15),
    Sketcher.Constraint("Symmetric", 2, 2, 4, 2, -1, 1),
    Sketcher.Constraint("Symmetric", 0, 2, 6, 2, -1, 1),
    Sketcher.Constraint("Symmetric", 10, 2, 12, 2, -1, 1),
    Sketcher.Constraint("Symmetric", 8, 2, 14, 2, -1, 1),
    Sketcher.Constraint("Symmetric", 1, 2, 8, 2, -2),
    Sketcher.Constraint("Symmetric", 3, 2, 10, 2, -2),
    Sketcher.Constraint("Equal", 15, 0),
    Sketcher.Constraint("DistanceX", 1, 1, 1, 2, Q("7.5 mm")),
    Sketcher.Constraint("DistanceX", -1, 1, 0, 2, Q("36 mm")),
    Sketcher.Constraint("DistanceY", -1, 1, 0, 2, Q("18 mm")),
])
pad4 = doc.addObject("PartDesign::Pad", "Pad003")
body.addObject(pad4)
pad4.Profile = sketch8
pad4.Length = 5

sketch9 = doc.addObject("Sketcher::SketchObject", "Sketch008")
body.addObject(sketch9)
sketch9.AttachmentSupport = (doc.XY_Plane, [""])
sketch9.MapMode = "FlatFace"
sketch9.AttachmentOffset = App.Placement(App.Vector(0, 0, 7), App.Rotation())
sketch9.addGeometry([
    Part.Circle(App.Vector(-39, 21, 0), App.Vector(0, 0, 1), 1.4),
    Part.Circle(App.Vector(39, 21, 0), App.Vector(0, 0, 1), 1.4),
    Part.Circle(App.Vector(39, -21, 0), App.Vector(0, 0, 1), 1.4),
    Part.Circle(App.Vector(-39, -21, 0), App.Vector(0, 0, 1), 1.4),
], False)
sketch9.addConstraint([
    Sketcher.Constraint("Equal", 0, 1),
    Sketcher.Constraint("Equal", 1, 2),
    Sketcher.Constraint("Equal", 2, 3),
    Sketcher.Constraint("Symmetric", 0, 3, 2, 3, -1, 1),
    Sketcher.Constraint("Symmetric", 1, 3, 3, 3, -1, 1),
    Sketcher.Constraint("Symmetric", 0, 3, 1, 3, -2),
    Sketcher.Constraint("Diameter", 0, Q("2.9 mm")),
    Sketcher.Constraint("DistanceX", 0, 3, -1, 1, Q("39 mm")),
    Sketcher.Constraint("DistanceY", -1, 1, 0, 3, Q("21 mm")),
])
pocket5 = doc.addObject("PartDesign::Pocket", "Pocket004")
body.addObject(pocket5)
pocket5.Profile = sketch9
pocket5.Length = 7
doc.recompute()

chamfer3 = doc.addObject("PartDesign::Chamfer", "Chamfer002")
body.addObject(chamfer3)
chamfer3.Base = (pocket5, edges_at(pocket5, [
    (-36, 18, 4.5),
    (36, 18, 4.5),
    (36, -18, 4.5),
    (-36, -18, 4.5),
]))
chamfer3.Size = 1.5
doc.recompute()

chamfer4 = doc.addObject("PartDesign::Chamfer", "Chamfer003")
body.addObject(chamfer4)
chamfer4.Base = (chamfer3, edges_at(chamfer3, [(19, -23.5, 5)]))
chamfer4.ChamferType = "Two distances"
chamfer4.Size = 1.9
chamfer4.Size2 = 2.9
doc.recompute()

chamfer5 = doc.addObject("PartDesign::Chamfer", "Chamfer004")
body.addObject(chamfer5)
chamfer5.Base = (chamfer4, edges_at(chamfer4, [(-4, -23.5, 5)]))
chamfer5.ChamferType = "Two distances"
chamfer5.Size = 1.9
chamfer5.Size2 = 2.9
chamfer5.FlipDirection = True
doc.recompute()

chamfer6 = doc.addObject("PartDesign::Chamfer", "Chamfer005")
body.addObject(chamfer6)
chamfer6.Base = (chamfer5, edges_at(chamfer5, [(-19.75, -23.5, 5)]))
chamfer6.ChamferType = "Two distances"
chamfer6.Size = 1.9
chamfer6.Size2 = 2.9
chamfer6.FlipDirection = True
doc.recompute()

chamfer7 = doc.addObject("PartDesign::Chamfer", "Chamfer006")
body.addObject(chamfer7)
chamfer7.Base = (chamfer6, edges_at(chamfer6, [(41.5, -1, 5)]))
chamfer7.ChamferType = "Two distances"
chamfer7.Size = 2.9
chamfer7.Size2 = 1.9
doc.recompute()

chamfer8 = doc.addObject("PartDesign::Chamfer", "Chamfer007")
body.addObject(chamfer8)
chamfer8.Base = (chamfer7, edges_at(chamfer7, [
    (-40.45, 21, 7),
    (37.55, -21, 7),
    (-40.45, -21, 7),
    (37.55, 21, 7),
    (-36, -22.5, 7),
    (-36.75, -18.75, 7),
    (-40.5, -18, 7),
    (-40.5, 18, 7),
    (-36.75, 18.75, 7),
    (-36, 22.5, 7),
    (36, -22.5, 7),
    (36.75, -18.75, 7),
    (40.5, -18, 7),
    (40.5, 18, 7),
    (36.75, 18.75, 7),
    (36, 22.5, 7),
    (37.55, -21, 0),
    (37.55, 21, 0),
    (15.25, 20, 0),
    (20.25, 22.75, 0),
    (15.25, 25.5, 0),
    (10.25, 22.75, 0),
    (-24, 17, 0),
    (-32, 20.25, 0),
    (-24, 23.5, 0),
    (-16, 24, 0),
    (-24.5, 24.5, 0),
    (-33, 20.25, 0),
    (-24.5, 16, 0),
    (-16, 16.5, 0),
    (-40.45, 21, 0),
    (-40.45, -21, 0),
    (-15, -13, 0),
]))
chamfer8.Size = 0.4
doc.recompute()

chamfer9 = doc.addObject("PartDesign::Chamfer", "Chamfer008")
body.addObject(chamfer9)
chamfer9.Base = (chamfer8, edges_at(chamfer8, [(0, -27, 0)]))
chamfer9.Size = 1

doc.recompute()
